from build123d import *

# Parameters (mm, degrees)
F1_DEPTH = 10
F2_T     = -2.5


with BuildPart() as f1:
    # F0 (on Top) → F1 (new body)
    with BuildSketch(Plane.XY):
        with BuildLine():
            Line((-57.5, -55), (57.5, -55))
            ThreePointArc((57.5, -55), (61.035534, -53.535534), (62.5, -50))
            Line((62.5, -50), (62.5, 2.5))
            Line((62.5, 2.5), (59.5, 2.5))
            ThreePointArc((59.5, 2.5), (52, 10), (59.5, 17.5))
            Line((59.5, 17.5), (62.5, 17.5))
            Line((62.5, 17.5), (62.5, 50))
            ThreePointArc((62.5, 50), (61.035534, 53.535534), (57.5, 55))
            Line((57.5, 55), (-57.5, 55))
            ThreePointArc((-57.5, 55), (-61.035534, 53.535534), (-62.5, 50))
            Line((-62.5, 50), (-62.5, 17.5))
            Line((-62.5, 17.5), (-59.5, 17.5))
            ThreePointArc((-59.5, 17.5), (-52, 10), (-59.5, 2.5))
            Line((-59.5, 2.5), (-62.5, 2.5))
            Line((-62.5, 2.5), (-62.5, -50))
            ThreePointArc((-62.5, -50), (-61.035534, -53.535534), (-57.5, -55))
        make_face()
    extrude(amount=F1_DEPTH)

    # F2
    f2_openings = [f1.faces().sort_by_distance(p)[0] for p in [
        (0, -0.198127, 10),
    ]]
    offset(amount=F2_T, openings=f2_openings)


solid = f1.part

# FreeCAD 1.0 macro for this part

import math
import FreeCAD as App
import Part
import Sketcher


def faces_at(feature, points):
    """Names of the faces that lie closest to the given points."""
    faces = feature.Shape.Faces
    near = lambda p: min(range(len(faces)), key=lambda i: faces[i].distToShape(Part.Vertex(*p))[0])
    return sorted({f"Face{near(p) + 1}" for p in points})

doc = App.newDocument("Part")
body = doc.addObject("PartDesign::Body", "Body")

# Sketch on XY plane
sketch1 = body.newObject("Sketcher::SketchObject", "Sketch")
sketch1.AttachmentSupport = (doc.getObject("XY_Plane"), [""])
sketch1.MapMode = "FlatFace"
sketch1.addGeometry(Part.LineSegment(App.Vector(-57.5, -55, 0), App.Vector(57.5, -55, 0)), False)
sketch1.addGeometry(Part.ArcOfCircle(Part.Circle(App.Vector(57.5, -50, 0), App.Vector(0, 0, 1), 5), math.radians(-90), math.radians(0)), False)
sketch1.addGeometry(Part.LineSegment(App.Vector(62.5, -50, 0), App.Vector(62.5, 2.5, 0)), False)
sketch1.addGeometry(Part.LineSegment(App.Vector(62.5, 2.5, 0), App.Vector(59.5, 2.5, 0)), False)
sketch1.addGeometry(Part.ArcOfCircle(Part.Circle(App.Vector(59.5, 10, 0), App.Vector(0, 0, 1), 7.5), math.radians(90), math.radians(270)), False)
sketch1.addGeometry(Part.LineSegment(App.Vector(59.5, 17.5, 0), App.Vector(62.5, 17.5, 0)), False)
sketch1.addGeometry(Part.LineSegment(App.Vector(62.5, 17.5, 0), App.Vector(62.5, 50, 0)), False)
sketch1.addGeometry(Part.ArcOfCircle(Part.Circle(App.Vector(57.5, 50, 0), App.Vector(0, 0, 1), 5), math.radians(0), math.radians(90)), False)
sketch1.addGeometry(Part.LineSegment(App.Vector(57.5, 55, 0), App.Vector(-57.5, 55, 0)), False)
sketch1.addGeometry(Part.ArcOfCircle(Part.Circle(App.Vector(-57.5, 50, 0), App.Vector(0, 0, 1), 5), math.radians(90), math.radians(180)), False)
sketch1.addGeometry(Part.LineSegment(App.Vector(-62.5, 50, 0), App.Vector(-62.5, 17.5, 0)), False)
sketch1.addGeometry(Part.LineSegment(App.Vector(-62.5, 17.5, 0), App.Vector(-59.5, 17.5, 0)), False)
sketch1.addGeometry(Part.ArcOfCircle(Part.Circle(App.Vector(-59.5, 10, 0), App.Vector(0, 0, 1), 7.5), math.radians(-90), math.radians(90)), False)
sketch1.addGeometry(Part.LineSegment(App.Vector(-59.5, 2.5, 0), App.Vector(-62.5, 2.5, 0)), False)
sketch1.addGeometry(Part.LineSegment(App.Vector(-62.5, 2.5, 0), App.Vector(-62.5, -50, 0)), False)
sketch1.addGeometry(Part.ArcOfCircle(Part.Circle(App.Vector(-57.5, -50, 0), App.Vector(0, 0, 1), 5), math.radians(180), math.radians(270)), False)
sketch1.addConstraint(Sketcher.Constraint("Tangent", 0, 2, 1, 1))
sketch1.addConstraint(Sketcher.Constraint("Tangent", 1, 2, 2, 1))
sketch1.addConstraint(Sketcher.Constraint("Coincident", 2, 2, 3, 1))
sketch1.addConstraint(Sketcher.Constraint("Tangent", 3, 2, 4, 2))
sketch1.addConstraint(Sketcher.Constraint("Tangent", 4, 1, 5, 1))
sketch1.addConstraint(Sketcher.Constraint("Coincident", 5, 2, 6, 1))
sketch1.addConstraint(Sketcher.Constraint("Tangent", 6, 2, 7, 1))
sketch1.addConstraint(Sketcher.Constraint("Tangent", 7, 2, 8, 1))
sketch1.addConstraint(Sketcher.Constraint("Tangent", 8, 2, 9, 1))
sketch1.addConstraint(Sketcher.Constraint("Tangent", 9, 2, 10, 1))
sketch1.addConstraint(Sketcher.Constraint("Coincident", 10, 2, 11, 1))
sketch1.addConstraint(Sketcher.Constraint("Tangent", 11, 2, 12, 2))
sketch1.addConstraint(Sketcher.Constraint("Tangent", 12, 1, 13, 1))
sketch1.addConstraint(Sketcher.Constraint("Coincident", 13, 2, 14, 1))
sketch1.addConstraint(Sketcher.Constraint("Tangent", 14, 2, 15, 1))
sketch1.addConstraint(Sketcher.Constraint("Tangent", 15, 2, 0, 1))
sketch1.addConstraint(Sketcher.Constraint("Horizontal", 0))
sketch1.addConstraint(Sketcher.Constraint("Vertical", 2))
sketch1.addConstraint(Sketcher.Constraint("Horizontal", 3))
sketch1.addConstraint(Sketcher.Constraint("Horizontal", 5))
sketch1.addConstraint(Sketcher.Constraint("Vertical", 6))
sketch1.addConstraint(Sketcher.Constraint("Horizontal", 8))
sketch1.addConstraint(Sketcher.Constraint("Vertical", 10))
sketch1.addConstraint(Sketcher.Constraint("Horizontal", 11))
sketch1.addConstraint(Sketcher.Constraint("Horizontal", 13))
sketch1.addConstraint(Sketcher.Constraint("Vertical", 14))
sketch1.addConstraint(Sketcher.Constraint("Equal", 1, 7))
sketch1.addConstraint(Sketcher.Constraint("Equal", 7, 9))
sketch1.addConstraint(Sketcher.Constraint("Equal", 4, 12))
sketch1.addConstraint(Sketcher.Constraint("Equal", 9, 15))
sketch1.addConstraint(Sketcher.Constraint("Symmetric", 1, 3, 9, 3, -1, 1))
sketch1.addConstraint(Sketcher.Constraint("Symmetric", 4, 3, 12, 3, -2))
sketch1.addConstraint(Sketcher.Constraint("Vertical", 1, 3, 7, 3))
sketch1.addConstraint(Sketcher.Constraint("Vertical", 9, 3, 15, 3))
sketch1.addConstraint(Sketcher.Constraint("Radius", 1, 5.0))
sketch1.addConstraint(Sketcher.Constraint("Radius", 4, 7.5))
sketch1.addConstraint(Sketcher.Constraint("DistanceX", 0, 1, 0, 2, 115.0))
sketch1.addConstraint(Sketcher.Constraint("DistanceX", 3, 2, 3, 1, 3.0))
sketch1.addConstraint(Sketcher.Constraint("DistanceY", 2, 1, 2, 2, 52.5))
sketch1.addConstraint(Sketcher.Constraint("DistanceY", 6, 1, 6, 2, 32.5))
pad1 = body.newObject("PartDesign::Pad", "Pad")
pad1.Profile = sketch1
pad1.Length = 10
doc.recompute()

thickness = body.newObject("PartDesign::Thickness", "Thickness")
thickness.Base = (pad1, faces_at(pad1, [(0, 0, 10)]))
thickness.Value = 2.5
thickness.Reversed = True
thickness.Join = "Arc"

doc.recompute()
